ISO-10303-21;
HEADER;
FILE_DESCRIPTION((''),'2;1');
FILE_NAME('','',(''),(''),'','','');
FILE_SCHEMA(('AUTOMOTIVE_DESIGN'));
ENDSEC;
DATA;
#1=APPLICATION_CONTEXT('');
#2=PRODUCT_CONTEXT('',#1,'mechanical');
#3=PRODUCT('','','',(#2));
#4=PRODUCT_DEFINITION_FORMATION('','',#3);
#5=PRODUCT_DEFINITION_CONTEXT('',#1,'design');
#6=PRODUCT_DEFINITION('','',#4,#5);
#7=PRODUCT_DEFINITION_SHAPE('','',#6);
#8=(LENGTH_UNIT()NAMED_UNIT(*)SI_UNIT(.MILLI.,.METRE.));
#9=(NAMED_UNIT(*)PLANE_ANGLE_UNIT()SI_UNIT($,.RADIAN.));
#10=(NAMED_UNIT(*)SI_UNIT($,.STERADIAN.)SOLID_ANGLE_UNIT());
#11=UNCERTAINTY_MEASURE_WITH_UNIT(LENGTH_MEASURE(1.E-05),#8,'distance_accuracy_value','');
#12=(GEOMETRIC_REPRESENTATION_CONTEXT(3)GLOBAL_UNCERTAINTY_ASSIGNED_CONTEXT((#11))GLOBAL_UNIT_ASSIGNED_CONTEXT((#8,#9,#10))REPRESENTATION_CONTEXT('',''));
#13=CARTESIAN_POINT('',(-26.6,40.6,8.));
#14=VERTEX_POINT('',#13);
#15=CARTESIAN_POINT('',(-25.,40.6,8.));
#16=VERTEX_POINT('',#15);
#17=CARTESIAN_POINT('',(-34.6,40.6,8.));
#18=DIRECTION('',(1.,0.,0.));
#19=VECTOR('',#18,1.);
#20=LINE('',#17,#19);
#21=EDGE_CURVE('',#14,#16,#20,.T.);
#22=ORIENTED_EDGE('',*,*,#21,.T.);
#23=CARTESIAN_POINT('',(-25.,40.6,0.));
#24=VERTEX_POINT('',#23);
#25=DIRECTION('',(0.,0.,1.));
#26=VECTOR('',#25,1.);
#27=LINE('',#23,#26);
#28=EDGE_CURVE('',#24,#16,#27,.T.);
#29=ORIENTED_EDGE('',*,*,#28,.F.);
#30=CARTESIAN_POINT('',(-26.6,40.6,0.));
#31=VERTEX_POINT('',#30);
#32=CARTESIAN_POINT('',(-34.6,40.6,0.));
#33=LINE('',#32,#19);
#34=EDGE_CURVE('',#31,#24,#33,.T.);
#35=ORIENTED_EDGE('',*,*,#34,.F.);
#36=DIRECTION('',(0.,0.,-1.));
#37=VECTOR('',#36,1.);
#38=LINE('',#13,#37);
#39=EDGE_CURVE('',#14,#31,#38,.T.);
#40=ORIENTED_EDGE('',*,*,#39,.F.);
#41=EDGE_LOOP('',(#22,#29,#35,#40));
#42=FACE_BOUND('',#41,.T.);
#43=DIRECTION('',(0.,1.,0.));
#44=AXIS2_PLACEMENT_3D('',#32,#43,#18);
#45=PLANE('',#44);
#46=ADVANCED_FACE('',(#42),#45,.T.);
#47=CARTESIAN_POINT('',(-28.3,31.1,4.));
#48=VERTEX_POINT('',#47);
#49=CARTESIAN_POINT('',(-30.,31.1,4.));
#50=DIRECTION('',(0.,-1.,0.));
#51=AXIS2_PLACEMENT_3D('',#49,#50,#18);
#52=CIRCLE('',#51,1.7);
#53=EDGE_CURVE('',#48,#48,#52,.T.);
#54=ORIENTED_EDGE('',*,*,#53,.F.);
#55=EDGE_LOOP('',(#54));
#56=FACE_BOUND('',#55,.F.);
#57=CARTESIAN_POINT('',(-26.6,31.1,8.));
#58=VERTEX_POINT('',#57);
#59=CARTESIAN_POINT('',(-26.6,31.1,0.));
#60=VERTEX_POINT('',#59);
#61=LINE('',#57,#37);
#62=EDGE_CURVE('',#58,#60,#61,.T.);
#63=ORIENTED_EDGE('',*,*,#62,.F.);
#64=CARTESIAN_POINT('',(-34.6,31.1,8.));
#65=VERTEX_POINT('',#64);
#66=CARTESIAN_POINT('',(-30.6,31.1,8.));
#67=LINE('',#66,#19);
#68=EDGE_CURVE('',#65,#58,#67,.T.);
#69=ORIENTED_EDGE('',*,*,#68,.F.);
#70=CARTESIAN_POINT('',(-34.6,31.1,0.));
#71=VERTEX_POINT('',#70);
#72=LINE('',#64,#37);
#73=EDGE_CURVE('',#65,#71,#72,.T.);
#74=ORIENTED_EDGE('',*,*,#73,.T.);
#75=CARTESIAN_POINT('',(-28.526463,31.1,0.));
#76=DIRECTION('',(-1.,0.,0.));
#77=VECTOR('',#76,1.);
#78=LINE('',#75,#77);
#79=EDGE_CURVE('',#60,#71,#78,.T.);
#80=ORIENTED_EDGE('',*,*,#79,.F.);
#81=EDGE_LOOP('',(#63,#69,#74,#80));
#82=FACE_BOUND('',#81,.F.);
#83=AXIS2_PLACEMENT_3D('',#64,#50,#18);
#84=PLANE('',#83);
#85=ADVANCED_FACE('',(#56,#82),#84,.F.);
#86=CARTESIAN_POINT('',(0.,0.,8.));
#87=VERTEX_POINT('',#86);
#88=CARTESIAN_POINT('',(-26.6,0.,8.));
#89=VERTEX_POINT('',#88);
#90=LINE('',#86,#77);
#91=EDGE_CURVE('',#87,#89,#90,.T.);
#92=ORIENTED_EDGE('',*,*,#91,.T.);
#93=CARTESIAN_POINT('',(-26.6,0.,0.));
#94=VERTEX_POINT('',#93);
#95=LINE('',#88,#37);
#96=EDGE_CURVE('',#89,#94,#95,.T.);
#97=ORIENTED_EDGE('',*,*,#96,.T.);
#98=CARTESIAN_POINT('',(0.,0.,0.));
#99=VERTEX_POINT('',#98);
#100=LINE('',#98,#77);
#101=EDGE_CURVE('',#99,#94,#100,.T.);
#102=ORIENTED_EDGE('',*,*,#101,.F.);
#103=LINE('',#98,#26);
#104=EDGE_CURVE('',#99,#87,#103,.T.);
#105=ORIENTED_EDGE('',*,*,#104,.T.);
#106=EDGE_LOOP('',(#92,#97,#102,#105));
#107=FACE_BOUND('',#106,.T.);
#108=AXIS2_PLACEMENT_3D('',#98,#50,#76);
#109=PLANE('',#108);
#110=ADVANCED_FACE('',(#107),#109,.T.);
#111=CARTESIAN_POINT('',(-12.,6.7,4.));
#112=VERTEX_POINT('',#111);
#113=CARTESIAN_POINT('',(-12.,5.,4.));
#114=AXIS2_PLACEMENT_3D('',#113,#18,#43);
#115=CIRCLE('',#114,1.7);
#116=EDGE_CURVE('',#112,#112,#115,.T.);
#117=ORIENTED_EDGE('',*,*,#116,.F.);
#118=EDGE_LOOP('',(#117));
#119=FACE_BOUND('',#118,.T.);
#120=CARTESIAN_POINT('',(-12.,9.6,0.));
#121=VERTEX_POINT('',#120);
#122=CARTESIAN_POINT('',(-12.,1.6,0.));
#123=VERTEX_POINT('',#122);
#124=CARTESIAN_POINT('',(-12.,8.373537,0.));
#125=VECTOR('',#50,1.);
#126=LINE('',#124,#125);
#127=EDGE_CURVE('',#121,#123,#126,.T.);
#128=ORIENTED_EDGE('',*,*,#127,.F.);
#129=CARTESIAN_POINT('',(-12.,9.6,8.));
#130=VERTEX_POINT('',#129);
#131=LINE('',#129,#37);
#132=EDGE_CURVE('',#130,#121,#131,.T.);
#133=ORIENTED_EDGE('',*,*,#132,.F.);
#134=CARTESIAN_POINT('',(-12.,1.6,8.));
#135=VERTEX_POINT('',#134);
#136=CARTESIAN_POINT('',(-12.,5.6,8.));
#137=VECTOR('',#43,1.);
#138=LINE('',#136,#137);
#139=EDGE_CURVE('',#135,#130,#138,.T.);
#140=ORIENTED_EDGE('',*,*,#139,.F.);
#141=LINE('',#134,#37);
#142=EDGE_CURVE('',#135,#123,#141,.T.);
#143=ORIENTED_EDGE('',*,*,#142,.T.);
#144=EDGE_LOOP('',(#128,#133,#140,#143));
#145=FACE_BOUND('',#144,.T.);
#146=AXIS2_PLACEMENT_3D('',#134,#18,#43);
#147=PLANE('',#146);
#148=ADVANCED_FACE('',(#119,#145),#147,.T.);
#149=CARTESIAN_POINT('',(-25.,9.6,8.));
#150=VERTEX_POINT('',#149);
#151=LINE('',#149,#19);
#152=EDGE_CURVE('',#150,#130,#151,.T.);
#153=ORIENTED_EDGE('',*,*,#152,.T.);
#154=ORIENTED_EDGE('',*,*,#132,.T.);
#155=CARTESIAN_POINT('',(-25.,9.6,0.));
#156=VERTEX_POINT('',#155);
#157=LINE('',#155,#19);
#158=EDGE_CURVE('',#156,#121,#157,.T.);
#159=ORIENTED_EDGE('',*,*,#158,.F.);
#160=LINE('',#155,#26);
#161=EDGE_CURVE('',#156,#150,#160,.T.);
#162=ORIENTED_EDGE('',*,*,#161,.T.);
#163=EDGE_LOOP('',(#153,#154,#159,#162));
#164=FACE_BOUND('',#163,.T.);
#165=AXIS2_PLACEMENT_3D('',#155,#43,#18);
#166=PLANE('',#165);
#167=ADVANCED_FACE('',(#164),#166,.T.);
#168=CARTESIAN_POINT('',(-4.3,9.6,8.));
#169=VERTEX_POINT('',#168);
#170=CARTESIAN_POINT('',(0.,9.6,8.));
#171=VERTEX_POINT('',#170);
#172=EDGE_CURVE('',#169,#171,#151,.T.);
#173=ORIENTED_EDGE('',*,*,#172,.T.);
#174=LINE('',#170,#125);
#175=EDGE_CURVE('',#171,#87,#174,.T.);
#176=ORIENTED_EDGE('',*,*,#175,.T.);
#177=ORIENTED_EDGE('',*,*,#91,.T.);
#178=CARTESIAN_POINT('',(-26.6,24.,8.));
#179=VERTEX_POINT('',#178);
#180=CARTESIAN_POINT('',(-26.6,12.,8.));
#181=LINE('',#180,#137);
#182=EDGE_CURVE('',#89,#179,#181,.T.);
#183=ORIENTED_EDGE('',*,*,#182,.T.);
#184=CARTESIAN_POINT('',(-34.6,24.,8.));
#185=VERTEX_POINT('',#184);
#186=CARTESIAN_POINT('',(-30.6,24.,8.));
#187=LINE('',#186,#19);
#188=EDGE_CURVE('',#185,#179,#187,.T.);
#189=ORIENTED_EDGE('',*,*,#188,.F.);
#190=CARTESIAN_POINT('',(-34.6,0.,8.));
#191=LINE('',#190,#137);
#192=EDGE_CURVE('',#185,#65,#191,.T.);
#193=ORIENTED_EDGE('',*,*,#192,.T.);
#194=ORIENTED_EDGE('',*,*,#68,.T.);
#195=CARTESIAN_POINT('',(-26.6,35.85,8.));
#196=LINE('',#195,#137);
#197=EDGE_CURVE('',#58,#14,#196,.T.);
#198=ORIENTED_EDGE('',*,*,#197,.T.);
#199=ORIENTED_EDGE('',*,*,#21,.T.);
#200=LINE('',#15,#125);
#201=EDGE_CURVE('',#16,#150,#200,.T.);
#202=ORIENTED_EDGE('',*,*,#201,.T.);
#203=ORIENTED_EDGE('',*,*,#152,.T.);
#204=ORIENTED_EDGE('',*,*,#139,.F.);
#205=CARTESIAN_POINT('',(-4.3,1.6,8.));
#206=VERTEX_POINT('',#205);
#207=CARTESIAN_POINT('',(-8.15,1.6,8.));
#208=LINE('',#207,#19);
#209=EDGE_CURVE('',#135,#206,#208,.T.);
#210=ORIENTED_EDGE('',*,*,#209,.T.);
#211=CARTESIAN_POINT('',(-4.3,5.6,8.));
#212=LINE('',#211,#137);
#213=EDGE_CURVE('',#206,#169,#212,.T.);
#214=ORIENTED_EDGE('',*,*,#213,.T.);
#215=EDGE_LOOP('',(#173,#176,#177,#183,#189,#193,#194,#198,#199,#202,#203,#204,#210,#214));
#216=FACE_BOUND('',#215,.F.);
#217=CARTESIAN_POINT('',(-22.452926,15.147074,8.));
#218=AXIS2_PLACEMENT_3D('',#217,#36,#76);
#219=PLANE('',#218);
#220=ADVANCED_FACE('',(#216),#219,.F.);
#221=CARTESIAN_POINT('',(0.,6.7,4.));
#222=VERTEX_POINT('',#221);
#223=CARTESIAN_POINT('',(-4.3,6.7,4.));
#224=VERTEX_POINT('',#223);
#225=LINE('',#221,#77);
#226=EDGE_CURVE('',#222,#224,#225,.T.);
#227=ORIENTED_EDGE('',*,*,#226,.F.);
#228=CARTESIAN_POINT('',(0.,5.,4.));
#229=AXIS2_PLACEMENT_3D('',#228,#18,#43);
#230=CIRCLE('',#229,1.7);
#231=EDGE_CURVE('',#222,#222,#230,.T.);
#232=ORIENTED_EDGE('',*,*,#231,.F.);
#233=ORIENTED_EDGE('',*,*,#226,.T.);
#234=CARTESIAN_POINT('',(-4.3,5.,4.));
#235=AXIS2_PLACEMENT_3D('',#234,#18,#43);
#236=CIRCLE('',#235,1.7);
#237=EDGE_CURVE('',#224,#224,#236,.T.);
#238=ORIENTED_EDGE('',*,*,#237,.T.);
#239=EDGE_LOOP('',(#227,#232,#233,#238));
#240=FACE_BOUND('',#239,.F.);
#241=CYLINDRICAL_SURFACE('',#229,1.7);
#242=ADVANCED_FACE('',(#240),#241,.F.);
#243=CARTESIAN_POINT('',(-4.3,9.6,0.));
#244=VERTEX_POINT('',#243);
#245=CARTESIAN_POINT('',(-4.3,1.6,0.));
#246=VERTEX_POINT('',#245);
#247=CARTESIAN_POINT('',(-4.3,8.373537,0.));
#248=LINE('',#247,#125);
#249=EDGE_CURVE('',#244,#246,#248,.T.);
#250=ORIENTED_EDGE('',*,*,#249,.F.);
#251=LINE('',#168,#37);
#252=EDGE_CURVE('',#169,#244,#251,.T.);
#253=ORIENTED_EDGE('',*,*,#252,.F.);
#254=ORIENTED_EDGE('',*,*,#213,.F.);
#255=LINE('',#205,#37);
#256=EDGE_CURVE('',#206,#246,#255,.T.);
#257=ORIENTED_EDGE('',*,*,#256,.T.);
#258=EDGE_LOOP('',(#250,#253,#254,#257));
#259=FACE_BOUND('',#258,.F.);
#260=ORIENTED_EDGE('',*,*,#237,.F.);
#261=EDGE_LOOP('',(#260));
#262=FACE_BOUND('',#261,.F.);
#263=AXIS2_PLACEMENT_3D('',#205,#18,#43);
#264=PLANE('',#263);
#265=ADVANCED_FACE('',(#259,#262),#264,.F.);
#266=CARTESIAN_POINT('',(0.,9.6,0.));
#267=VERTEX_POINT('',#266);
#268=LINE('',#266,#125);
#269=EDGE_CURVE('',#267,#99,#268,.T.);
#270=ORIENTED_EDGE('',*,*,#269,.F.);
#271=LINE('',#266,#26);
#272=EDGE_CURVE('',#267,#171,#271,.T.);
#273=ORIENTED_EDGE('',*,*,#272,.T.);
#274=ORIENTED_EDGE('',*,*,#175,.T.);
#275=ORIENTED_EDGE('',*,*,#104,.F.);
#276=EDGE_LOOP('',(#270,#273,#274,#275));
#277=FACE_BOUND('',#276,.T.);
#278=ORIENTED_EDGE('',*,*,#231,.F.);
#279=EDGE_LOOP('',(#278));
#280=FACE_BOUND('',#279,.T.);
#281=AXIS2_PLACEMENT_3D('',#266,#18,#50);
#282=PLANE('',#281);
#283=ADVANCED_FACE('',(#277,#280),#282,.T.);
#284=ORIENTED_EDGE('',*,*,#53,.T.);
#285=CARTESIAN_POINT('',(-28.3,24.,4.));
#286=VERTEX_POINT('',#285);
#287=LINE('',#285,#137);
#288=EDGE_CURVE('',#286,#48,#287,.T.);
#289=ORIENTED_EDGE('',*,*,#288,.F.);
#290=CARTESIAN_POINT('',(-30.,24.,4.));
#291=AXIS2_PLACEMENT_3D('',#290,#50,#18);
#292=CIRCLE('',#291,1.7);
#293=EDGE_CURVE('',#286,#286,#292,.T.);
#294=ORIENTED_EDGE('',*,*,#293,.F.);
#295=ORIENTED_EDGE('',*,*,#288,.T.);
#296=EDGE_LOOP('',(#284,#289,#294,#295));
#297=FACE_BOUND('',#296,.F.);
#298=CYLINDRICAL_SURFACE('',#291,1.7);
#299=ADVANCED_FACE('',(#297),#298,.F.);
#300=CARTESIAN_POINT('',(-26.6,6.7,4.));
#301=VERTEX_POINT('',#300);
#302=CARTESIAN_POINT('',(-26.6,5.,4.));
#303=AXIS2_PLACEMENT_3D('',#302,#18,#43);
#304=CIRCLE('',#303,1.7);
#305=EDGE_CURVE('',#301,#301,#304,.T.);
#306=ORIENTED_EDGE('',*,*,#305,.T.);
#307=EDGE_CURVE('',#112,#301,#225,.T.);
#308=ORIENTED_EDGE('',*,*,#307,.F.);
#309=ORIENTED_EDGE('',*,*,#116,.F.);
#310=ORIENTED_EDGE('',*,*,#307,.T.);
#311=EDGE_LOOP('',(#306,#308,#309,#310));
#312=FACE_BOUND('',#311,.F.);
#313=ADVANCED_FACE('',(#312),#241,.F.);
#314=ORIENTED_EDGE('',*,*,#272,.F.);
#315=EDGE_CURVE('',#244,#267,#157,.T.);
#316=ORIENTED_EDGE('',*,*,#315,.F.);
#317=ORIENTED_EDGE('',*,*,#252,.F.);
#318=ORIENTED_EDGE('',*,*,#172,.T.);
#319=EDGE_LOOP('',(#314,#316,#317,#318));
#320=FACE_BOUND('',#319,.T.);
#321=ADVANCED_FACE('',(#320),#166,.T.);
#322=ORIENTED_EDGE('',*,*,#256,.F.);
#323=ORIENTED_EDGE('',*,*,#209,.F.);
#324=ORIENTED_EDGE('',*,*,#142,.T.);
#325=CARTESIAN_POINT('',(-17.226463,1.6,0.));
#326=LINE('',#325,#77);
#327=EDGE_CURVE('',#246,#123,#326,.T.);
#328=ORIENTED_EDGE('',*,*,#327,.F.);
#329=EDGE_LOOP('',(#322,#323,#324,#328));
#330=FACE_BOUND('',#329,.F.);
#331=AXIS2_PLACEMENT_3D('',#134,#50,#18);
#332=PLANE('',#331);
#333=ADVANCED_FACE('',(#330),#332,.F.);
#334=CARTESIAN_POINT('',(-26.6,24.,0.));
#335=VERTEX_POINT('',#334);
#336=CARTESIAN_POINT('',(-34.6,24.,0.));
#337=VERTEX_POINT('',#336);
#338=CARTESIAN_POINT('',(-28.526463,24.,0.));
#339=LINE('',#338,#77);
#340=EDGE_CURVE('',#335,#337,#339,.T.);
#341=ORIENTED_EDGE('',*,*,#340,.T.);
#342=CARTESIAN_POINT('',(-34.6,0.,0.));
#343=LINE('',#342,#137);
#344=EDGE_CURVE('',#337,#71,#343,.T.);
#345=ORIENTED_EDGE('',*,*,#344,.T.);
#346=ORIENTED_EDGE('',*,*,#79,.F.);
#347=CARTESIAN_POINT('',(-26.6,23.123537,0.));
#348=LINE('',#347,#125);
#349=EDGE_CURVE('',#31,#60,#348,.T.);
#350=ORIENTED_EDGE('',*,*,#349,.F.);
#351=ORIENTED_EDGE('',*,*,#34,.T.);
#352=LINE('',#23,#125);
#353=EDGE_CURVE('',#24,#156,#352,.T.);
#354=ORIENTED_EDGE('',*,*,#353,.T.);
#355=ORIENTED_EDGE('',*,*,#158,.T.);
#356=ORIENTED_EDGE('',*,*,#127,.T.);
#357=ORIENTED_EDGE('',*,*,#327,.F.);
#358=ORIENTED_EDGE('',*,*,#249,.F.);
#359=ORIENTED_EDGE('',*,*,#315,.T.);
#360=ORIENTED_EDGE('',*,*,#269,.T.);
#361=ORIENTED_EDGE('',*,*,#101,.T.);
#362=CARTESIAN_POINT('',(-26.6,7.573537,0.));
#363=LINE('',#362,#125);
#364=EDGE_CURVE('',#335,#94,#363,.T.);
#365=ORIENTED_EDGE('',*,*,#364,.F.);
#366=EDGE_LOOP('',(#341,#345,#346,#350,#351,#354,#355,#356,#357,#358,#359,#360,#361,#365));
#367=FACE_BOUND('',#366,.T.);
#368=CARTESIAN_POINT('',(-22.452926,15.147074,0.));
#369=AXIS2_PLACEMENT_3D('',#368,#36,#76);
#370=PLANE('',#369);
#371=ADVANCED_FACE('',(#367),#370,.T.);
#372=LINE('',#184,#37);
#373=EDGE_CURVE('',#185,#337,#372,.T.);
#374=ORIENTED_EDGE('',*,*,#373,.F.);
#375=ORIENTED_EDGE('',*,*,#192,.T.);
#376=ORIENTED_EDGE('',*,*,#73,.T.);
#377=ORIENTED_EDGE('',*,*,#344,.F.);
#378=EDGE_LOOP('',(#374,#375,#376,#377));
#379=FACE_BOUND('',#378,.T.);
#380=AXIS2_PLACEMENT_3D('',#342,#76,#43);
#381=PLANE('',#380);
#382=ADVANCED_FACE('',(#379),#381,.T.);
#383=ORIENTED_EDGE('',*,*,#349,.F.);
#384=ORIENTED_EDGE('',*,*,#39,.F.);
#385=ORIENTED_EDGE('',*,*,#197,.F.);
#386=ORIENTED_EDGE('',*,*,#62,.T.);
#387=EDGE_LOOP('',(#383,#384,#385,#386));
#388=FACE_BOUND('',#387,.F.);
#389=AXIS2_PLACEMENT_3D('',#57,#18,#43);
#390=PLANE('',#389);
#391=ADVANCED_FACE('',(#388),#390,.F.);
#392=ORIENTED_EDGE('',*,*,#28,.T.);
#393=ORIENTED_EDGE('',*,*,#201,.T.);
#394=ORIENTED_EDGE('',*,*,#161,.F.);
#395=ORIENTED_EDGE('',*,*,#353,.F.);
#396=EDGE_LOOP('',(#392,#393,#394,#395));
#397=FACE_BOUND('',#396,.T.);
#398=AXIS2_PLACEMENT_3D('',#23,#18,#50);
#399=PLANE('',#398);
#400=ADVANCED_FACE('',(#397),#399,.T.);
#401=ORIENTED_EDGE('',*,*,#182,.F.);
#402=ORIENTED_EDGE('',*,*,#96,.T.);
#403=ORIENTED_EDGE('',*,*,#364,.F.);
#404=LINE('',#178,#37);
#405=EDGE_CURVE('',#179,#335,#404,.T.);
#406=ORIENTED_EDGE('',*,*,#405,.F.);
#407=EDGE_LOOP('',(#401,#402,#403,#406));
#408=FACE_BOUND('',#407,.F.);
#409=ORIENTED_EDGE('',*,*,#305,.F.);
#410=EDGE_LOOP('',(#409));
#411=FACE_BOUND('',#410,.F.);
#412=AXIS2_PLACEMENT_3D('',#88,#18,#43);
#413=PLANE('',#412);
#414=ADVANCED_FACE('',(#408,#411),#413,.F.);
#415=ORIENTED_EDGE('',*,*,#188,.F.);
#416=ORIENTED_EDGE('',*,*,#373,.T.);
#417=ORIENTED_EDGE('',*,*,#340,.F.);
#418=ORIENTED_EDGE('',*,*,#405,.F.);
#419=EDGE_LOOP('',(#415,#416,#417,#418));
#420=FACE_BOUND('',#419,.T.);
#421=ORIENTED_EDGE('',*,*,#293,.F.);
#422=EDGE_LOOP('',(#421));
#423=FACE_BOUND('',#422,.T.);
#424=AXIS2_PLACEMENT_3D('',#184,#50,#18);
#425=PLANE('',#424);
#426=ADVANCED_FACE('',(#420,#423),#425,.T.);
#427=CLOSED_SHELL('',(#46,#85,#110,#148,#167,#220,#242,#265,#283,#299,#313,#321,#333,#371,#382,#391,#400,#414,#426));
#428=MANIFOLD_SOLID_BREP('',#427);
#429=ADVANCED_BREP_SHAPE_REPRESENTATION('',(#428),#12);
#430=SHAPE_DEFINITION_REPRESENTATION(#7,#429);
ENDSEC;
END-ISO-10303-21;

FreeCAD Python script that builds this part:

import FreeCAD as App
import Part
import Sketcher
from FreeCAD import Vector
Q = App.Units.Quantity

doc = App.newDocument("Part")
body = doc.addObject("PartDesign::Body", "Body")

# Sketch on XY plane
sketch1 = body.newObject("Sketcher::SketchObject", "Sketch")
sketch1.AttachmentSupport = (doc.getObject("XY_Plane"), [""])
sketch1.MapMode = "FlatFace"
sketch1.addGeometry([
    Part.LineSegment(Vector(-35, 0, 0), Vector(0, 0, 0)),  # 0
    Part.LineSegment(Vector(0, 0, 0), Vector(0, 10, 0)),  # 1
    Part.LineSegment(Vector(0, 10, 0), Vector(-25, 10, 0)),  # 2
    Part.LineSegment(Vector(-25, 10, 0), Vector(-25, 41, 0)),  # 3
    Part.LineSegment(Vector(-25, 41, 0), Vector(-35, 41, 0)),  # 4
    Part.LineSegment(Vector(-35, 41, 0), Vector(-35, 0, 0)),  # 5
], False)
sketch1.addConstraint([
    Sketcher.Constraint("Coincident", 0, 2, 1, 1),
    Sketcher.Constraint("Coincident", 1, 2, 2, 1),
    Sketcher.Constraint("Coincident", 2, 2, 3, 1),
    Sketcher.Constraint("Coincident", 3, 2, 4, 1),
    Sketcher.Constraint("Coincident", 4, 2, 5, 1),
    Sketcher.Constraint("Coincident", 5, 2, 0, 1),
    Sketcher.Constraint("Horizontal", 0),
    Sketcher.Constraint("Vertical", 1),
    Sketcher.Constraint("Horizontal", 2),
    Sketcher.Constraint("Vertical", 3),
    Sketcher.Constraint("Horizontal", 4),
    Sketcher.Constraint("Vertical", 5),
    Sketcher.Constraint("Coincident", 0, 2, -1, 1),
    Sketcher.Constraint("Equal", 4, 1),
    Sketcher.Constraint("DistanceX", 2, 2, 2, 1, Q("25 mm")),
    Sketcher.Constraint("DistanceY", 3, 1, 3, 2, Q("31 mm")),
    Sketcher.Constraint("DistanceX", 0, 1, 0, 2, Q("34.6 mm")),
])
pad1 = body.newObject("PartDesign::Pad", "Pad")
pad1.Profile = sketch1
pad1.Length = 8

# Sketch on XY plane
sketch2 = body.newObject("Sketcher::SketchObject", "Sketch001")
sketch2.AttachmentSupport = (doc.getObject("XY_Plane"), [""])
sketch2.MapMode = "FlatFace"
sketch2.AttachmentOffset = App.Placement(Vector(0, 0, 8), App.Rotation())
sketch2.addGeometry([
    Part.LineSegment(Vector(-35, 41, 0), Vector(-35, 31, 0)),  # 0
    Part.LineSegment(Vector(-35, 31, 0), Vector(-27, 31, 0)),  # 1
    Part.LineSegment(Vector(-27, 31, 0), Vector(-27, 41, 0)),  # 2
    Part.LineSegment(Vector(-27, 41, 0), Vector(-35, 41, 0)),  # 3
    Part.LineSegment(Vector(-35, 24, 0), Vector(-35, 0, 0)),  # 4
    Part.LineSegment(Vector(-35, 0, 0), Vector(-27, 0, 0)),  # 5
    Part.LineSegment(Vector(-27, 0, 0), Vector(-27, 24, 0)),  # 6
    Part.LineSegment(Vector(-27, 24, 0), Vector(-35, 24, 0)),  # 7
    Part.LineSegment(Vector(-12, 10, 0), Vector(-12, 2, 0)),  # 8
    Part.LineSegment(Vector(-12, 2, 0), Vector(-4, 2, 0)),  # 9
    Part.LineSegment(Vector(-4, 2, 0), Vector(-4, 10, 0)),  # 10
    Part.LineSegment(Vector(-4, 10, 0), Vector(-12, 10, 0)),  # 11
], False)
sketch2.addConstraint([
    Sketcher.Constraint("Coincident", 0, 2, 1, 1),
    Sketcher.Constraint("Coincident", 1, 2, 2, 1),
    Sketcher.Constraint("Coincident", 2, 2, 3, 1),
    Sketcher.Constraint("Coincident", 3, 2, 0, 1),
    Sketcher.Constraint("Coincident", 4, 2, 5, 1),
    Sketcher.Constraint("Coincident", 5, 2, 6, 1),
    Sketcher.Constraint("Coincident", 6, 2, 7, 1),
    Sketcher.Constraint("Coincident", 7, 2, 4, 1),
    Sketcher.Constraint("Coincident", 8, 2, 9, 1),
    Sketcher.Constraint("Coincident", 9, 2, 10, 1),
    Sketcher.Constraint("Coincident", 10, 2, 11, 1),
    Sketcher.Constraint("Coincident", 11, 2, 8, 1),
    Sketcher.Constraint("Vertical", 0),
    Sketcher.Constraint("Horizontal", 1),
    Sketcher.Constraint("Vertical", 2),
    Sketcher.Constraint("Horizontal", 3),
    Sketcher.Constraint("Vertical", 4),
    Sketcher.Constraint("Horizontal", 5),
    Sketcher.Constraint("Vertical", 6),
    Sketcher.Constraint("Horizontal", 7),
    Sketcher.Constraint("Vertical", 8),
    Sketcher.Constraint("Horizontal", 9),
    Sketcher.Constraint("Vertical", 10),
    Sketcher.Constraint("Horizontal", 11),
    Sketcher.Constraint("PointOnObject", 4, 2, -1),
    Sketcher.Constraint("Vertical", 3, 2, 4, 2),
    Sketcher.Constraint("Vertical", 2, 2, 5, 2),
    Sketcher.Constraint("Equal", 7, 8),
    Sketcher.Constraint("DistanceX", 1, 1, 1, 2, Q("8 mm")),
    Sketcher.Constraint("DistanceY", 4, 2, 4, 1, Q("24 mm")),
    Sketcher.Constraint("DistanceX", 9, 1, 9, 2, Q("7.7 mm")),
    Sketcher.Constraint("DistanceY", 0, 2, 0, 1, Q("9.5 mm")),
    Sketcher.Constraint("DistanceX", 8, 2, -1, 1, Q("12 mm")),
    Sketcher.Constraint("DistanceX", 0, 2, -1, 1, Q("34.6 mm")),
    Sketcher.Constraint("DistanceY", -1, 1, 0, 2, Q("31.1 mm")),
    Sketcher.Constraint("DistanceY", -1, 1, 8, 2, Q("1.6 mm")),
])
pocket1 = body.newObject("PartDesign::Pocket", "Pocket")
pocket1.Profile = sketch2
pocket1.Length = 9

# Sketch on XZ plane
sketch3 = body.newObject("Sketcher::SketchObject", "Sketch002")
sketch3.AttachmentSupport = (doc.getObject("XZ_Plane"), [""])
sketch3.MapMode = "FlatFace"
sketch3.AttachmentOffset = App.Placement(Vector(0, 0, -24), App.Rotation())
sketch3.addGeometry(Part.Circle(Vector(-30, 4, 0), Vector(0, 0, 1), 1.7), False)
sketch3.addConstraint([
    Sketcher.Constraint("Diameter", 0, Q("3.4 mm")),
    Sketcher.Constraint("DistanceX", 0, 3, -1, 1, Q("30 mm")),
    Sketcher.Constraint("DistanceY", -1, 1, 0, 3, Q("4 mm")),
])
pocket2 = body.newObject("PartDesign::Pocket", "Pocket001")
pocket2.Profile = sketch3
pocket2.Length = 9

# Sketch on YZ plane
sketch4 = body.newObject("Sketcher::SketchObject", "Sketch003")
sketch4.AttachmentSupport = (doc.getObject("YZ_Plane"), [""])
sketch4.MapMode = "FlatFace"
sketch4.addGeometry(Part.Circle(Vector(5, 4, 0), Vector(0, 0, 1), 1.7), False)
sketch4.addConstraint([
    Sketcher.Constraint("Diameter", 0, Q("3.4 mm")),
    Sketcher.Constraint("DistanceX", -1, 1, 0, 3, Q("5 mm")),
    Sketcher.Constraint("DistanceY", -1, 1, 0, 3, Q("4 mm")),
])
pocket3 = body.newObject("PartDesign::Pocket", "Pocket002")
pocket3.Profile = sketch4
pocket3.Length = 35

doc.recompute()
